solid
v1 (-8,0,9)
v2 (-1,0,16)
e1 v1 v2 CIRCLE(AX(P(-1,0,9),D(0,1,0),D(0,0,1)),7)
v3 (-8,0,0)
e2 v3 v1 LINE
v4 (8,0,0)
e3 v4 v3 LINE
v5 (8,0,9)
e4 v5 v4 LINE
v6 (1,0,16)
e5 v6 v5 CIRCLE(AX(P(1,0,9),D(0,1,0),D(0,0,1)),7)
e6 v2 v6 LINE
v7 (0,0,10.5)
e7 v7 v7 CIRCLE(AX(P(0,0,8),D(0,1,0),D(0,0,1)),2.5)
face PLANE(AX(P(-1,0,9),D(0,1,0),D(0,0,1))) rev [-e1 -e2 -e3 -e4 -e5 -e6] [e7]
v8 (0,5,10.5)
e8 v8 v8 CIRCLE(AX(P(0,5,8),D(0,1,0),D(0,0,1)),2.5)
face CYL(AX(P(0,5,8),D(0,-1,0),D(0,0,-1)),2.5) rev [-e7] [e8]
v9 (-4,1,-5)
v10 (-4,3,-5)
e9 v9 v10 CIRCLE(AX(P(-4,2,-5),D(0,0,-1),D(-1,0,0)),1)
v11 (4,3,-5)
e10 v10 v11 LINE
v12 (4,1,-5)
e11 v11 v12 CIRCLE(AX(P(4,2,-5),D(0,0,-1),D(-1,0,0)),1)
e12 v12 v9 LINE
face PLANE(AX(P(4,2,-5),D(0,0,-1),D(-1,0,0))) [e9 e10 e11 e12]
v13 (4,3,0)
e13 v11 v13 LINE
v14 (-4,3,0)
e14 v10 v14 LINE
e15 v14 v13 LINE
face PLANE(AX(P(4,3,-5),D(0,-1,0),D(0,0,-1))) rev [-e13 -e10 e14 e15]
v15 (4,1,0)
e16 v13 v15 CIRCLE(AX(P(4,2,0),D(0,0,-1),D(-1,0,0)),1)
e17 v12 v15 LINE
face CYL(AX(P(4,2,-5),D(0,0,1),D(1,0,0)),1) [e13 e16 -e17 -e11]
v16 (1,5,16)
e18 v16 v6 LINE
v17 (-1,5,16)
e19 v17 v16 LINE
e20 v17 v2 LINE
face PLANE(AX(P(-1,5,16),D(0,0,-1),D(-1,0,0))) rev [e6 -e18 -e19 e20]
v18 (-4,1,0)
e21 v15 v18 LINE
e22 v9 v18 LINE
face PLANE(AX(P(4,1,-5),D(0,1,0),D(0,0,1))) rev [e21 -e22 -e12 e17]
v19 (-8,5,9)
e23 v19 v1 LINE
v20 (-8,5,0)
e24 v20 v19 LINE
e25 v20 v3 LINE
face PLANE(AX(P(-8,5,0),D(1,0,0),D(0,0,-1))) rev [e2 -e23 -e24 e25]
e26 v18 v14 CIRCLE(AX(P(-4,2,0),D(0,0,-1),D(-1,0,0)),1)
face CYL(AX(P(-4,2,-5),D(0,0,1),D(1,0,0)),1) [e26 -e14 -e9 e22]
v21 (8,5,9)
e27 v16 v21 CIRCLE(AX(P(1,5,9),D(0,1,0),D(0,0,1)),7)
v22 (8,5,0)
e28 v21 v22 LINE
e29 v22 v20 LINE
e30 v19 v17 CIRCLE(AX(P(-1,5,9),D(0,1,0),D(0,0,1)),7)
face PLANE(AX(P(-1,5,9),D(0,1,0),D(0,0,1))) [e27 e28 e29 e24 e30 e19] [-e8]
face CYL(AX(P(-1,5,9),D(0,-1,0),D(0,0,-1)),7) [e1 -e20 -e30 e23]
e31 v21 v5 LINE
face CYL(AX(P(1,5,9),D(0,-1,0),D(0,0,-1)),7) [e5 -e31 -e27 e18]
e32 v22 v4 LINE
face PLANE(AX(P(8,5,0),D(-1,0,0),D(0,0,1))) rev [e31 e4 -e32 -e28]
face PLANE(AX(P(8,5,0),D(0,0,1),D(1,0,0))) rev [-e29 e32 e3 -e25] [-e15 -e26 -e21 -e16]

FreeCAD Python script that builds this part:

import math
import FreeCAD as App
import Part
import Sketcher
from FreeCAD import Vector

doc = App.newDocument("Part")
body = doc.addObject("PartDesign::Body", "Body")

# Sketch on XZ plane
sketch1 = body.newObject("Sketcher::SketchObject", "Sketch")
sketch1.AttachmentSupport = (doc.getObject("XZ_Plane"), [""])
sketch1.MapMode = "FlatFace"
sketch1.addGeometry(Part.LineSegment(Vector(-8, 0, 0), Vector(-8, 9, 0)), False)
sketch1.addGeometry(Part.ArcOfCircle(Part.Circle(Vector(-1, 9, 0), Vector(0, 0, 1), 7), math.radians(90), math.radians(180)), False)
sketch1.addGeometry(Part.LineSegment(Vector(-1, 16, 0), Vector(1, 16, 0)), False)
sketch1.addGeometry(Part.ArcOfCircle(Part.Circle(Vector(1, 9, 0), Vector(0, 0, 1), 7), math.radians(0), math.radians(90)), False)
sketch1.addGeometry(Part.LineSegment(Vector(8, 9, 0), Vector(8, 0, 0)), False)
sketch1.addGeometry(Part.LineSegment(Vector(8, 0, 0), Vector(-8, 0, 0)), False)
sketch1.addGeometry(Part.Circle(Vector(0, 8, 0), Vector(0, 0, 1), 2.5), False)
sketch1.addConstraint(Sketcher.Constraint("Tangent", 0, 2, 1, 2))
sketch1.addConstraint(Sketcher.Constraint("Tangent", 1, 1, 2, 1))
sketch1.addConstraint(Sketcher.Constraint("Tangent", 2, 2, 3, 2))
sketch1.addConstraint(Sketcher.Constraint("Tangent", 3, 1, 4, 1))
sketch1.addConstraint(Sketcher.Constraint("Coincident", 4, 2, 5, 1))
sketch1.addConstraint(Sketcher.Constraint("Coincident", 5, 2, 0, 1))
sketch1.addConstraint(Sketcher.Constraint("Vertical", 0))
sketch1.addConstraint(Sketcher.Constraint("Horizontal", 2))
sketch1.addConstraint(Sketcher.Constraint("Vertical", 4))
sketch1.addConstraint(Sketcher.Constraint("Horizontal", 5))
sketch1.addConstraint(Sketcher.Constraint("Equal", 1, 3))
sketch1.addConstraint(Sketcher.Constraint("Symmetric", 4, 2, 5, 2, -1, 1))
sketch1.addConstraint(Sketcher.Constraint("PointOnObject", 6, 3, -2))
sketch1.addConstraint(Sketcher.Constraint("Diameter", 6, 5.0))
sketch1.addConstraint(Sketcher.Constraint("Radius", 1, 7.0))
sketch1.addConstraint(Sketcher.Constraint("DistanceX", 2, 1, 2, 2, 2.0))
sketch1.addConstraint(Sketcher.Constraint("DistanceY", 0, 1, 0, 2, 9.0))
sketch1.addConstraint(Sketcher.Constraint("DistanceY", -1, 1, 6, 3, 8.0))
pad1 = body.newObject("PartDesign::Pad", "Pad")
pad1.Profile = sketch1
pad1.Length = 5
pad1.Reversed = True

# Sketch on XY plane
sketch2 = body.newObject("Sketcher::SketchObject", "Sketch001")
sketch2.AttachmentSupport = (doc.getObject("XY_Plane"), [""])
sketch2.MapMode = "FlatFace"
sketch2.addGeometry(Part.LineSegment(Vector(-4, 3, 0), Vector(4, 3, 0)), False)
sketch2.addGeometry(Part.ArcOfCircle(Part.Circle(Vector(4, 2, 0), Vector(0, 0, 1), 1), math.radians(-90), math.radians(90)), False)
sketch2.addGeometry(Part.LineSegment(Vector(4, 1, 0), Vector(-4, 1, 0)), False)
sketch2.addGeometry(Part.ArcOfCircle(Part.Circle(Vector(-4, 2, 0), Vector(0, 0, 1), 1), math.radians(90), math.radians(270)), False)
sketch2.addConstraint(Sketcher.Constraint("Tangent", 0, 2, 1, 2))
sketch2.addConstraint(Sketcher.Constraint("Tangent", 1, 1, 2, 1))
sketch2.addConstraint(Sketcher.Constraint("Tangent", 2, 2, 3, 2))
sketch2.addConstraint(Sketcher.Constraint("Tangent", 3, 1, 0, 1))
sketch2.addConstraint(Sketcher.Constraint("Horizontal", 0))
sketch2.addConstraint(Sketcher.Constraint("Horizontal", 2))
sketch2.addConstraint(Sketcher.Constraint("Radius", 1, 1.0))
sketch2.addConstraint(Sketcher.Constraint("DistanceX", 0, 1, 0, 2, 8.0))
sketch2.addConstraint(Sketcher.Constraint("DistanceX", -1, 1, 1, 3, 4.0))
sketch2.addConstraint(Sketcher.Constraint("DistanceY", -1, 1, 1, 3, 2.0))
pad2 = body.newObject("PartDesign::Pad", "Pad001")
pad2.Profile = sketch2
pad2.Length = 5
pad2.Reversed = True

doc.recompute()
